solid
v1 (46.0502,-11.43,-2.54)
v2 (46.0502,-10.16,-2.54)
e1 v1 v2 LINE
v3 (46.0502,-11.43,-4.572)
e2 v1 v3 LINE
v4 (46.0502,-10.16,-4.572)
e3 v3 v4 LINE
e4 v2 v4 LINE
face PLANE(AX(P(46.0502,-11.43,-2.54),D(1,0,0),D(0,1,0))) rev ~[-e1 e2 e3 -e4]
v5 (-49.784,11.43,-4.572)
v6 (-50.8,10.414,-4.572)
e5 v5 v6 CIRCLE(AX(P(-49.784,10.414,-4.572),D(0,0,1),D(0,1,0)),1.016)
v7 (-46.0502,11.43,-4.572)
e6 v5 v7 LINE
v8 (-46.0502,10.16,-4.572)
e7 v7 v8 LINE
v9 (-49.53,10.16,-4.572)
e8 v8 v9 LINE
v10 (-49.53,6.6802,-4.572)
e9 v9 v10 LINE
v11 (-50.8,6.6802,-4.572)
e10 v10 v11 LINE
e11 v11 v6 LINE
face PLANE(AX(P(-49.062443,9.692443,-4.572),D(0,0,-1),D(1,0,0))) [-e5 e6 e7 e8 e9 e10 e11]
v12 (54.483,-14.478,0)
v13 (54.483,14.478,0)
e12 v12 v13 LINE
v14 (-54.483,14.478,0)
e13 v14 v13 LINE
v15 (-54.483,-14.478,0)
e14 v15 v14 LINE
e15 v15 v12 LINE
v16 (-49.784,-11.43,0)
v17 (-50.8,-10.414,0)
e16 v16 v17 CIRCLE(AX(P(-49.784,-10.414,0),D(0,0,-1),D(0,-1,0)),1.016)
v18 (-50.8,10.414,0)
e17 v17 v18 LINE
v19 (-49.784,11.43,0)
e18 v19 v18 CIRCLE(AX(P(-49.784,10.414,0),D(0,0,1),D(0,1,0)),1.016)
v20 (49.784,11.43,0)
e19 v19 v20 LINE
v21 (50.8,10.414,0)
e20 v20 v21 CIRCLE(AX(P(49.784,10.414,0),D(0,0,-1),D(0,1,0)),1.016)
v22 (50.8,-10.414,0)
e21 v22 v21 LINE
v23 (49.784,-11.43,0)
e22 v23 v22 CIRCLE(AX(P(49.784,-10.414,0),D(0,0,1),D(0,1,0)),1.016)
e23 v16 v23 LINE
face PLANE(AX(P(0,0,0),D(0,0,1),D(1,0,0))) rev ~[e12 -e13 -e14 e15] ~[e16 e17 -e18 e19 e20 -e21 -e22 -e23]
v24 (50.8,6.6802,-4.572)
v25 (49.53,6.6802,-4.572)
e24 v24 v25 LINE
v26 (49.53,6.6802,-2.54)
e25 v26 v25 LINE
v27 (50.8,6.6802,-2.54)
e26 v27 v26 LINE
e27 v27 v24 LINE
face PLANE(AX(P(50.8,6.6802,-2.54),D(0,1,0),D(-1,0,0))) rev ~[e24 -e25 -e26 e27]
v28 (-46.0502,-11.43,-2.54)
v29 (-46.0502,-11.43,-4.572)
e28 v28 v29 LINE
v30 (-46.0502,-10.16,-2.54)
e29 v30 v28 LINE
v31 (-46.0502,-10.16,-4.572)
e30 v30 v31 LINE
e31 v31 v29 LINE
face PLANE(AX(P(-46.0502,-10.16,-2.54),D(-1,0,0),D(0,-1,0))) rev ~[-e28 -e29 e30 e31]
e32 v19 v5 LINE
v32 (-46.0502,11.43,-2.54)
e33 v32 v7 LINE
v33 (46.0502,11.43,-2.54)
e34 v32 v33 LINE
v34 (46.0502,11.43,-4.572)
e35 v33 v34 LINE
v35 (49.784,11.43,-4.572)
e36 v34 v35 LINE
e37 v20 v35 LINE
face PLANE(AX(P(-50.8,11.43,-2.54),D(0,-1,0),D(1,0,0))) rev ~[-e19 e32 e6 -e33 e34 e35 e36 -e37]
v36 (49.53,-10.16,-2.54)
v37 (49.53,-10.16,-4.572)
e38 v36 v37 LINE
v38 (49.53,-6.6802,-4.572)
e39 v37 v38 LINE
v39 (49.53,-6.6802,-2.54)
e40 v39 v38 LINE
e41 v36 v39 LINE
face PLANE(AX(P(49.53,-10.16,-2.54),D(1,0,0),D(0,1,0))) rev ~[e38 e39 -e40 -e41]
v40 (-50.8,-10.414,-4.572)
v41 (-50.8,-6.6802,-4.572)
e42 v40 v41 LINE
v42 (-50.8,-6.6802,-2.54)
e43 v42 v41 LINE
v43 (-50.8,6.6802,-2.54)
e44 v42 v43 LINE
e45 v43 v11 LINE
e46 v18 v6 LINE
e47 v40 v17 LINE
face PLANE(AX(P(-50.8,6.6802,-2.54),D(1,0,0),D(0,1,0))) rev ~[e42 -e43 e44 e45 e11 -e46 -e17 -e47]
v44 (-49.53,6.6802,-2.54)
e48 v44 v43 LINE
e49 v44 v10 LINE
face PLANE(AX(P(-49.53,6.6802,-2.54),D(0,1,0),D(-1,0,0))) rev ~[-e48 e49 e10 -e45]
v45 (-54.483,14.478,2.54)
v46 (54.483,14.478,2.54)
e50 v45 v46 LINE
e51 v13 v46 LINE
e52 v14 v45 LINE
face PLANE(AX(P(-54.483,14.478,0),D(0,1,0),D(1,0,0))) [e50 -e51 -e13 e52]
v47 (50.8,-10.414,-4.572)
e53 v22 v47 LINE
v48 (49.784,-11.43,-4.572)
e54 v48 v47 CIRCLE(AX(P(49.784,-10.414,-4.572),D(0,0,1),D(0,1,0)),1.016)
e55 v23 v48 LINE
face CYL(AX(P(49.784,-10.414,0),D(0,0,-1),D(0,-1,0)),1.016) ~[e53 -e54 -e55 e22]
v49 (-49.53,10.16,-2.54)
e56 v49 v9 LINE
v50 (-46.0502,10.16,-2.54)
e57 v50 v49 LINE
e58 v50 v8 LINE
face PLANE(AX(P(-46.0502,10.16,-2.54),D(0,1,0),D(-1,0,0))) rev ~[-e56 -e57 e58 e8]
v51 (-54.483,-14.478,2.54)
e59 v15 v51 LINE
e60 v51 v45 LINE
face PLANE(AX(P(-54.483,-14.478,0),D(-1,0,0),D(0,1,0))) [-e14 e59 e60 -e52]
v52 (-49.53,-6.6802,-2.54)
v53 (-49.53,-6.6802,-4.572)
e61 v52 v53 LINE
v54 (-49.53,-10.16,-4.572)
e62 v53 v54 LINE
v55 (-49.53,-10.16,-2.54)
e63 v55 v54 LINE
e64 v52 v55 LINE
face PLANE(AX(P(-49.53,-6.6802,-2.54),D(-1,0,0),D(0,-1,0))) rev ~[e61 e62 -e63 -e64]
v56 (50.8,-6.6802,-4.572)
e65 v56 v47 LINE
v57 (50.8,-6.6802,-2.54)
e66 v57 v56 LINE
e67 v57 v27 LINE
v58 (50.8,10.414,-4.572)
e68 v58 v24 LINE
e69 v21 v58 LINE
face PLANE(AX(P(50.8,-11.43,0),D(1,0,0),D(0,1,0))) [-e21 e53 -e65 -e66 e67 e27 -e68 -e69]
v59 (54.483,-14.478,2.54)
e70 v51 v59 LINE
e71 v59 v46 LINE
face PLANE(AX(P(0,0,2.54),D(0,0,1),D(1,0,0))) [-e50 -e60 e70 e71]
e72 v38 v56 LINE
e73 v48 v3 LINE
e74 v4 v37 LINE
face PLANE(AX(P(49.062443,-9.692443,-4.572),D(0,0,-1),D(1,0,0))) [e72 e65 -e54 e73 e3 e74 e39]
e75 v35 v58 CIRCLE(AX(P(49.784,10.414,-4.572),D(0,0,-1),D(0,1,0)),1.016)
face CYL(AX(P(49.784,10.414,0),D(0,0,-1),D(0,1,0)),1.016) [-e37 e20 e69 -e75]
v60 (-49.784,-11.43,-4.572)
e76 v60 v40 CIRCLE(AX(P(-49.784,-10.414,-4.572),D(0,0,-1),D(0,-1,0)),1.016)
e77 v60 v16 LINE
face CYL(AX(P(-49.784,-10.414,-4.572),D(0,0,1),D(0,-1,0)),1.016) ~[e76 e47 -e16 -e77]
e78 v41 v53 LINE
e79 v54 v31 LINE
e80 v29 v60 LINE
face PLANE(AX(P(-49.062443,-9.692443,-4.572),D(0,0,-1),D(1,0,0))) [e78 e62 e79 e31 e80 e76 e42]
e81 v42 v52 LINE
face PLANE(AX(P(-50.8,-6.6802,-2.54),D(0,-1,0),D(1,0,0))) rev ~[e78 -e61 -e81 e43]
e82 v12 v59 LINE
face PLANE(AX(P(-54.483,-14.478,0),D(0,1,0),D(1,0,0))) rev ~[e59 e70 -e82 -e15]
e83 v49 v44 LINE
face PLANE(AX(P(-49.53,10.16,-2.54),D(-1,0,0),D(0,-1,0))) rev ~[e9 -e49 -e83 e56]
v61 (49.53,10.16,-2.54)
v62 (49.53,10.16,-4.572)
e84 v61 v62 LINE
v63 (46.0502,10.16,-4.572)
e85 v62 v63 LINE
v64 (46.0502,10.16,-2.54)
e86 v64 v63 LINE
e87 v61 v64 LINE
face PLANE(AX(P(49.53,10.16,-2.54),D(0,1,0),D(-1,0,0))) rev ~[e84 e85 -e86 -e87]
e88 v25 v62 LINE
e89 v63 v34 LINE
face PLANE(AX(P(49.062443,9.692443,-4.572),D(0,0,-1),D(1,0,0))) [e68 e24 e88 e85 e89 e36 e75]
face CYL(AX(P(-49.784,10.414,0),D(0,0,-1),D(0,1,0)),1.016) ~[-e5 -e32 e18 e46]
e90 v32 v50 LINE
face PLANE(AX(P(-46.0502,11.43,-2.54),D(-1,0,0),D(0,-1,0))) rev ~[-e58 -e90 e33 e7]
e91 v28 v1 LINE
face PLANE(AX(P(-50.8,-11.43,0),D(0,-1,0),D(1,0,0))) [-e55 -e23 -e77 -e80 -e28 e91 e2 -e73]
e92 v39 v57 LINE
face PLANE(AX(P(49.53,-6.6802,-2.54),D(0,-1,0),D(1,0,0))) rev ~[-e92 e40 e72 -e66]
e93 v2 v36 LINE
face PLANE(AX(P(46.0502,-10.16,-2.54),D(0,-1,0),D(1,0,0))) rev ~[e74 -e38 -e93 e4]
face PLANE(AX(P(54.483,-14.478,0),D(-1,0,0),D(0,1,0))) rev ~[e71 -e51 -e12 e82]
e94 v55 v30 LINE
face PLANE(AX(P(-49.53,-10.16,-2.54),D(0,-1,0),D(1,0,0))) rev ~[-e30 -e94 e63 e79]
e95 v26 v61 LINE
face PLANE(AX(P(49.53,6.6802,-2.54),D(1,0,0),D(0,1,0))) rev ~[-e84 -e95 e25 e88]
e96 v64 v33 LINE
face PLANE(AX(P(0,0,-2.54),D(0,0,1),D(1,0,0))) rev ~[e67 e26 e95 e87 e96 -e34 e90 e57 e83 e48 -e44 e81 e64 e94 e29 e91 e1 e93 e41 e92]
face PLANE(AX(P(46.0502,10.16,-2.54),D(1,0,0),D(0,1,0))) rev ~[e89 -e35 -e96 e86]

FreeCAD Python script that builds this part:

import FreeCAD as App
import Part
import Sketcher
from FreeCAD import Vector
Q = App.Units.Quantity


def edges_at(feature, points):
    """Names of the edges that pass closest to the given points."""
    edges = feature.Shape.Edges
    near = lambda p: min(range(len(edges)), key=lambda i: edges[i].distToShape(Part.Vertex(*p))[0])
    return sorted({f"Edge{near(p) + 1}" for p in points})


def add_polygon(sketch, points):
    """Adds a closed chain of lines whose ends are joined by coincident constraints."""
    first, n = sketch.GeometryCount, len(points)
    for a, b in zip(points, points[1:] + points[:1]):
        sketch.addGeometry(Part.LineSegment(App.Vector(*a, 0), App.Vector(*b, 0)), False)
    for i in range(n):
        sketch.addConstraint(Sketcher.Constraint("Coincident", first + i, 2, first + (i + 1) % n, 1))

doc = App.newDocument("Part")
body = doc.addObject("PartDesign::Body", "Body")

sketch1 = body.newObject("Sketcher::SketchObject", "Sketch")
sketch1.AttachmentSupport = (doc.getObject("XY_Plane"), [""])
sketch1.MapMode = "FlatFace"
add_polygon(sketch1, [(-54.483, 14.478), (-54.483, -14.478), (54.483, -14.478), (54.483, 14.478)])
sketch1.addConstraint([
    Sketcher.Constraint("Vertical", 0),
    Sketcher.Constraint("Horizontal", 1),
    Sketcher.Constraint("Vertical", 2),
    Sketcher.Constraint("Horizontal", 3),
    Sketcher.Constraint("Symmetric", 0, 2, 2, 2, -1, 1),
    Sketcher.Constraint("DistanceX", 1, 1, 1, 2, Q("4.29 in")),
    Sketcher.Constraint("DistanceY", 0, 2, 0, 1, Q("1.14 in")),
])
pad1 = body.newObject("PartDesign::Pad", "Pad")
pad1.Profile = sketch1
pad1.Length = Q("0.1 in")

sketch2 = body.newObject("Sketcher::SketchObject", "Sketch001")
sketch2.AttachmentSupport = (doc.getObject("XY_Plane"), [""])
sketch2.MapMode = "FlatFace"
add_polygon(sketch2, [(-50.8, 11.43), (-50.8, -11.43), (50.8, -11.43), (50.8, 11.43)])
sketch2.addConstraint([
    Sketcher.Constraint("Vertical", 0),
    Sketcher.Constraint("Horizontal", 1),
    Sketcher.Constraint("Vertical", 2),
    Sketcher.Constraint("Horizontal", 3),
    Sketcher.Constraint("Symmetric", 0, 2, 2, 2, -1, 1),
    Sketcher.Constraint("DistanceX", 1, 1, 1, 2, Q("4 in")),
    Sketcher.Constraint("DistanceY", 0, 2, 0, 1, Q("0.9 in")),
])
pad2 = body.newObject("PartDesign::Pad", "Pad001")
pad2.Profile = sketch2
pad2.Length = Q("0.1 in")
pad2.Reversed = True

sketch3 = body.newObject("Sketcher::SketchObject", "Sketch002")
sketch3.AttachmentSupport = (doc.getObject("XY_Plane"), [""])
sketch3.MapMode = "FlatFace"
sketch3.AttachmentOffset = App.Placement(Vector(0, 0, -0.1 * 25.4), App.Rotation())
add_polygon(sketch3, [(-49.53, 6.6802), (-50.8, 6.6802), (-50.8, 11.43), (-46.0502, 11.43), (-46.0502, 10.16), (-49.53, 10.16)])
add_polygon(sketch3, [(50.8, -6.6802), (50.8, -11.43), (46.0502, -11.43), (46.0502, -10.16), (49.53, -10.16), (49.53, -6.6802)])
add_polygon(sketch3, [(50.8, 11.43), (50.8, 6.6802), (49.53, 6.6802), (49.53, 10.16), (46.0502, 10.16), (46.0502, 11.43)])
add_polygon(sketch3, [(-46.0502, -10.16), (-46.0502, -11.43), (-50.8, -11.43), (-50.8, -6.6802), (-49.53, -6.6802), (-49.53, -10.16)])
sketch3.addConstraint([
    Sketcher.Constraint("Horizontal", 0),
    Sketcher.Constraint("Vertical", 1),
    Sketcher.Constraint("Horizontal", 2),
    Sketcher.Constraint("Vertical", 3),
    Sketcher.Constraint("Horizontal", 4),
    Sketcher.Constraint("Vertical", 5),
    Sketcher.Constraint("Vertical", 6),
    Sketcher.Constraint("Horizontal", 7),
    Sketcher.Constraint("Vertical", 8),
    Sketcher.Constraint("Horizontal", 9),
    Sketcher.Constraint("Vertical", 10),
    Sketcher.Constraint("Horizontal", 11),
    Sketcher.Constraint("Vertical", 12),
    Sketcher.Constraint("Horizontal", 13),
    Sketcher.Constraint("Vertical", 14),
    Sketcher.Constraint("Horizontal", 15),
    Sketcher.Constraint("Vertical", 16),
    Sketcher.Constraint("Horizontal", 17),
    Sketcher.Constraint("Vertical", 18),
    Sketcher.Constraint("Horizontal", 19),
    Sketcher.Constraint("Vertical", 20),
    Sketcher.Constraint("Horizontal", 21),
    Sketcher.Constraint("Vertical", 22),
    Sketcher.Constraint("Horizontal", 23),
    Sketcher.Constraint("Symmetric", 1, 2, 6, 2, -1, 1),
    Sketcher.Constraint("Symmetric", 3, 2, 8, 2, -1, 1),
    Sketcher.Constraint("Symmetric", 5, 2, 10, 2, -1, 1),
    Sketcher.Constraint("Symmetric", 16, 2, 18, 2, -1, 1),
    Sketcher.Constraint("Symmetric", 12, 2, 20, 2, -1, 1),
    Sketcher.Constraint("Symmetric", 14, 2, 22, 2, -1, 1),
    Sketcher.Constraint("Symmetric", 0, 2, 12, 2, -2),
    Sketcher.Constraint("Symmetric", 4, 2, 14, 2, -2),
    Sketcher.Constraint("Symmetric", 2, 2, 16, 2, -2),
    Sketcher.Constraint("Equal", 19, 1),
    Sketcher.Constraint("Equal", 21, 3),
    Sketcher.Constraint("DistanceX", 0, 2, -1, 1, Q("2 in")),
    Sketcher.Constraint("DistanceX", 0, 2, 0, 1, Q("0.05 in")),
    Sketcher.Constraint("DistanceY", -1, 1, 3, 2, Q("0.4 in")),
    Sketcher.Constraint("DistanceX", 2, 1, 2, 2, Q("0.187 in")),
])
pad3 = body.newObject("PartDesign::Pad", "Pad002")
pad3.Profile = sketch3
pad3.Length = Q("0.08 in")
pad3.Reversed = True
doc.recompute()

fillet = body.newObject("PartDesign::Fillet", "Fillet")
fillet.Base = (pad3, edges_at(pad3, [
    (-50.8, -11.43, -2.286),
    (-50.8, 11.43, -2.286),
    (50.8, 11.43, -2.286),
    (50.8, -11.43, -2.286),
]))
fillet.Radius = Q("0.04 in")

doc.recompute()
